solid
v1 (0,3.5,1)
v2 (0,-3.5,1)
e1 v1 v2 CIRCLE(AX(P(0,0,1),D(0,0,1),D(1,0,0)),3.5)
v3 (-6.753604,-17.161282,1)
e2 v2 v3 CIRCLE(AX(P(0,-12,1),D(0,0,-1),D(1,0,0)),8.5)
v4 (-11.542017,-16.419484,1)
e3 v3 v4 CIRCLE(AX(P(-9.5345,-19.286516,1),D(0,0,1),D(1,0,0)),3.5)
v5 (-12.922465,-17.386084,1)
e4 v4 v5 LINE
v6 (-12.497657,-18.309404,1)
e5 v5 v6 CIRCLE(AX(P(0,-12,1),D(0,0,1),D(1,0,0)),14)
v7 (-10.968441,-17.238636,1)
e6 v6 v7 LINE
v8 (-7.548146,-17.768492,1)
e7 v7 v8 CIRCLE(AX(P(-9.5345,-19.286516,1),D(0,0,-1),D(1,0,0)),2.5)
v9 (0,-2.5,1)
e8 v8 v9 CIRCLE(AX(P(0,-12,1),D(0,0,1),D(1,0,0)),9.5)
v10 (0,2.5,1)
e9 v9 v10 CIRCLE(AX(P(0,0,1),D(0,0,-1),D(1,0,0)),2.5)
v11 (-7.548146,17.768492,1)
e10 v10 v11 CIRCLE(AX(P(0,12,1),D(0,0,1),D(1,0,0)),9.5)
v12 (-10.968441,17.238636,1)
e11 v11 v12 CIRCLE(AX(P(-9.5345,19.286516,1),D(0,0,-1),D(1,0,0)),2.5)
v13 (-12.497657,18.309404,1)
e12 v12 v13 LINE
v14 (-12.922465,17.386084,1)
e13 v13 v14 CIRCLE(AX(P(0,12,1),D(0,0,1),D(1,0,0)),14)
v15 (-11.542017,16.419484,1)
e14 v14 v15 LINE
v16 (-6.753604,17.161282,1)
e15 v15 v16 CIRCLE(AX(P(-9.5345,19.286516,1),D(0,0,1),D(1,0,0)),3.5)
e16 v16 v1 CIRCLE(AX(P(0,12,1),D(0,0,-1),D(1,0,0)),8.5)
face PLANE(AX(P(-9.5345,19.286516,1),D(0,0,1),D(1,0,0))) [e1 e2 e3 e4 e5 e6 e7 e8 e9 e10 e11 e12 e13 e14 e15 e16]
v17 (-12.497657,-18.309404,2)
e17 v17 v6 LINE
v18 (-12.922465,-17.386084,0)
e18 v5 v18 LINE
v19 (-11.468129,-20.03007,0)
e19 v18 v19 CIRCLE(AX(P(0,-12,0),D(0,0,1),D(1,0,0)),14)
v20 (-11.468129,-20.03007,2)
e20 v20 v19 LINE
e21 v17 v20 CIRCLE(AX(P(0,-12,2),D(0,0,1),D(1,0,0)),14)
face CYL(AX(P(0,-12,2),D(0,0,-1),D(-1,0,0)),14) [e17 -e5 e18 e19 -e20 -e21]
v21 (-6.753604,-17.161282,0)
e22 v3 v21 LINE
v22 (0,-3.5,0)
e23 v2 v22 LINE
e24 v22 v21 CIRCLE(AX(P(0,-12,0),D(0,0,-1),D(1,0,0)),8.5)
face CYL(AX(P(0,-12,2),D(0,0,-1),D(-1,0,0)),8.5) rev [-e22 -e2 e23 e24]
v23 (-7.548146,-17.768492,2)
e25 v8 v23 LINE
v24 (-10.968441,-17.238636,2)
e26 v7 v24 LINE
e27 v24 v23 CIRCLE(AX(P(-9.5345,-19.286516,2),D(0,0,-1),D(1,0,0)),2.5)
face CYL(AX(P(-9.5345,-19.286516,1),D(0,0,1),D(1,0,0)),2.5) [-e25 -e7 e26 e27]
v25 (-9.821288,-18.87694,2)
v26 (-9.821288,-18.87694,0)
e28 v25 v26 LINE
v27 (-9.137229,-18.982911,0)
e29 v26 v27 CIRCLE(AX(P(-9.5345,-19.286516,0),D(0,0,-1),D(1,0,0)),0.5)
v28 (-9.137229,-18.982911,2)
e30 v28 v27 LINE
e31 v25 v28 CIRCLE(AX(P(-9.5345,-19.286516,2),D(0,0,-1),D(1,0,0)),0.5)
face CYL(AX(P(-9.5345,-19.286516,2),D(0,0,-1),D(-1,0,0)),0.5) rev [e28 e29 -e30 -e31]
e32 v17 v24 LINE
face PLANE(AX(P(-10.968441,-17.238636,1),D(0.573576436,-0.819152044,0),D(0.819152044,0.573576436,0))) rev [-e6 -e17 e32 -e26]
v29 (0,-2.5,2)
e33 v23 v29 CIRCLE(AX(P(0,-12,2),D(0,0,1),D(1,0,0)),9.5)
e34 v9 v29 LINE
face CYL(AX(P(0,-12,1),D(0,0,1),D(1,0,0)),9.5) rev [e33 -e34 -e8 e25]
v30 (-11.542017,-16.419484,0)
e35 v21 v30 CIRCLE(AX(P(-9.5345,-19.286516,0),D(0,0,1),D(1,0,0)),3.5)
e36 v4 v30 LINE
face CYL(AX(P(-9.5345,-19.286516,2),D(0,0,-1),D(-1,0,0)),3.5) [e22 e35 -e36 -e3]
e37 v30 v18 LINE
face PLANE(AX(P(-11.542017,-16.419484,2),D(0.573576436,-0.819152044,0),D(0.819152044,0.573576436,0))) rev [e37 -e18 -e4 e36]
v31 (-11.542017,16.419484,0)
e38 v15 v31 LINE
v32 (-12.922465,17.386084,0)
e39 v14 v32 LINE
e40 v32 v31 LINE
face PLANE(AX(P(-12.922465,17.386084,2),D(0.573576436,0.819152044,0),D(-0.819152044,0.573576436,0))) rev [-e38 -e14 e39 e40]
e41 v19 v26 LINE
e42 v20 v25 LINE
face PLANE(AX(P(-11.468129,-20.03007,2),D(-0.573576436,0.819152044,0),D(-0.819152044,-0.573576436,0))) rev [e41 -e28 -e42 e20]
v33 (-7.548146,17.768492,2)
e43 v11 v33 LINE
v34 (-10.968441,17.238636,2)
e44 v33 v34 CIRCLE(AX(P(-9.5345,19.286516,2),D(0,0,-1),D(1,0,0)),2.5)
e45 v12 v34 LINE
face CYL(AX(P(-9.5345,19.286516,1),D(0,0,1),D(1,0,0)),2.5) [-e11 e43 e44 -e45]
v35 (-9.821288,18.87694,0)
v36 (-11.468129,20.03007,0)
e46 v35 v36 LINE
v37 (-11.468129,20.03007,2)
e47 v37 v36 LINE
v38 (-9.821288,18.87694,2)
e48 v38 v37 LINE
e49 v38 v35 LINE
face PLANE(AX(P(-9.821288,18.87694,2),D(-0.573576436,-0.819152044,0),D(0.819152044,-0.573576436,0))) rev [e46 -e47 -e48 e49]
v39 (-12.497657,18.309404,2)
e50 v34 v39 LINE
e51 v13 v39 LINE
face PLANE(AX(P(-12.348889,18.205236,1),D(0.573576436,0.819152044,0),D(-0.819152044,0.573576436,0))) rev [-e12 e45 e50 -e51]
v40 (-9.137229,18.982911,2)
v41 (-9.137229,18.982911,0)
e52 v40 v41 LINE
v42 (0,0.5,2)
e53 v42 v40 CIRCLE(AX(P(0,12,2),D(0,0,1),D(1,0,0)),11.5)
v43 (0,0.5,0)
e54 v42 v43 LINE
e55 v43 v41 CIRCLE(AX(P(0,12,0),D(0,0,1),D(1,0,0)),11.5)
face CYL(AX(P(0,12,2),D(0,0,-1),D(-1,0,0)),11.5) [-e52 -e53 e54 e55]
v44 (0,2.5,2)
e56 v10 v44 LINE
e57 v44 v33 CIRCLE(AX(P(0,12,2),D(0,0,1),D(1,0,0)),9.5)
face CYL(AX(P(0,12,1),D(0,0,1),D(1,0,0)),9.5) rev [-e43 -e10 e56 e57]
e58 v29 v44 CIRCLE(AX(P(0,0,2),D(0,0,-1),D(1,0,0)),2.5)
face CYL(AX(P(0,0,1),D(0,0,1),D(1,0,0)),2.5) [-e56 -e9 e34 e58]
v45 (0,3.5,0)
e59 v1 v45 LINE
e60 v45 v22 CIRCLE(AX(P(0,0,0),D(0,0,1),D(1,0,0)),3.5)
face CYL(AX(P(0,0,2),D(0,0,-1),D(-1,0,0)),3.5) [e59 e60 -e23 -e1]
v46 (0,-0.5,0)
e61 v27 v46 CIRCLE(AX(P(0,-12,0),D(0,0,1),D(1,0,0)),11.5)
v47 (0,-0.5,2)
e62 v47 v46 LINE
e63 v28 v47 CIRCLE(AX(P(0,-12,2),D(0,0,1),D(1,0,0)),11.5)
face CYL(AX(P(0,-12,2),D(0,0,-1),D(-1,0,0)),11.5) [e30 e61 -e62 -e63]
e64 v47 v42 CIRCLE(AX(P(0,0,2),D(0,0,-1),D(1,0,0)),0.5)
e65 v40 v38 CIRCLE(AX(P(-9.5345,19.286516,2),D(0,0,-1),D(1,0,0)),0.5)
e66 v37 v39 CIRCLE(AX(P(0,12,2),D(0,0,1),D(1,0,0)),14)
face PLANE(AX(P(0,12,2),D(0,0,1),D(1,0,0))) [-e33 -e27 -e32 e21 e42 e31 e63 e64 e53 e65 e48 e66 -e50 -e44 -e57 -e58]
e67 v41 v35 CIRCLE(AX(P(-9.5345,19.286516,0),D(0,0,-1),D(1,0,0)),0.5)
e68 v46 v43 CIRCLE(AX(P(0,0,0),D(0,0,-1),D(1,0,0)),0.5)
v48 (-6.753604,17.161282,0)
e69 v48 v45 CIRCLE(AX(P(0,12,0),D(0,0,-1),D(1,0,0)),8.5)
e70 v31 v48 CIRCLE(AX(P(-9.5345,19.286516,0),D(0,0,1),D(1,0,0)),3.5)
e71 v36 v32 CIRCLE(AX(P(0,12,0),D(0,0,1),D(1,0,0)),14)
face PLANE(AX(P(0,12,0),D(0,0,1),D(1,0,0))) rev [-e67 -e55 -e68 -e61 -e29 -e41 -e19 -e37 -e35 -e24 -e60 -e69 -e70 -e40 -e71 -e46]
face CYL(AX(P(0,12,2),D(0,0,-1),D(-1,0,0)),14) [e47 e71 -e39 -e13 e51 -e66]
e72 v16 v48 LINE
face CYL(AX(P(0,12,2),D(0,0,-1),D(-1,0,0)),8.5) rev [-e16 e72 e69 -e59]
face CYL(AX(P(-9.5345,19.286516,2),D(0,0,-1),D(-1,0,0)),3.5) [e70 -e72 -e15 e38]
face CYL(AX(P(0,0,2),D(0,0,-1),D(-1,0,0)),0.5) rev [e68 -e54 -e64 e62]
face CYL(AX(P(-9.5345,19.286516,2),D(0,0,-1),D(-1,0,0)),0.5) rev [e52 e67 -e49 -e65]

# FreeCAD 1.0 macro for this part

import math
import FreeCAD as App
import Part
import Sketcher
Q = App.Units.Quantity

doc = App.newDocument("Part")
body = doc.addObject("PartDesign::Body", "Body")

# Sketch on XY plane
sketch1 = body.newObject("Sketcher::SketchObject", "Sketch")
sketch1.AttachmentSupport = (doc.getObject("XY_Plane"), [""])
sketch1.MapMode = "FlatFace"
sketch1.addGeometry([
    Part.LineSegment(App.Vector(-12.92, 17.39, 0), App.Vector(-11.54, 16.42, 0)),  # 0
    Part.ArcOfCircle(Part.Circle(App.Vector(-9.53, 19.29, 0), App.Vector(0, 0, 1), 3.5), math.radians(-125), math.radians(-37)),  # 1
    Part.ArcOfCircle(Part.Circle(App.Vector(0, 12, 0), App.Vector(0, 0, 1), 8.5), math.radians(-90), math.radians(143)),  # 2
    Part.ArcOfCircle(Part.Circle(App.Vector(0, 0, 0), App.Vector(0, 0, 1), 3.5), math.radians(90), math.radians(270)),  # 3
    Part.ArcOfCircle(Part.Circle(App.Vector(0, -12, 0), App.Vector(0, 0, 1), 8.5), math.radians(-143), math.radians(90)),  # 4
    Part.ArcOfCircle(Part.Circle(App.Vector(-9.53, -19.29, 0), App.Vector(0, 0, 1), 3.5), math.radians(37), math.radians(125)),  # 5
    Part.LineSegment(App.Vector(-11.54, -16.42, 0), App.Vector(-12.92, -17.39, 0)),  # 6
    Part.ArcOfCircle(Part.Circle(App.Vector(0, -12, 0), App.Vector(0, 0, 1), 14), math.radians(-157.37), math.radians(-145)),  # 7
    Part.LineSegment(App.Vector(-11.47, -20.03, 0), App.Vector(-9.82, -18.88, 0)),  # 8
    Part.ArcOfCircle(Part.Circle(App.Vector(-9.53, -19.29, 0), App.Vector(0, 0, 1), 0.5), math.radians(37), math.radians(125)),  # 9
    Part.ArcOfCircle(Part.Circle(App.Vector(0, -12, 0), App.Vector(0, 0, 1), 11.5), math.radians(-143), math.radians(90)),  # 10
    Part.ArcOfCircle(Part.Circle(App.Vector(0, 0, 0), App.Vector(0, 0, 1), 0.5), math.radians(90), math.radians(270)),  # 11
    Part.ArcOfCircle(Part.Circle(App.Vector(0, 12, 0), App.Vector(0, 0, 1), 11.5), math.radians(-90), math.radians(143)),  # 12
    Part.ArcOfCircle(Part.Circle(App.Vector(-9.53, 19.29, 0), App.Vector(0, 0, 1), 0.5), math.radians(-125), math.radians(-37)),  # 13
    Part.LineSegment(App.Vector(-9.82, 18.88, 0), App.Vector(-11.47, 20.03, 0)),  # 14
    Part.ArcOfCircle(Part.Circle(App.Vector(0, 12, 0), App.Vector(0, 0, 1), 14), math.radians(145), math.radians(157.37)),  # 15
], False)
sketch1.addConstraint([
    Sketcher.Constraint("Tangent", 0, 2, 1, 1),
    Sketcher.Constraint("Tangent", 1, 2, 2, 2),
    Sketcher.Constraint("Tangent", 2, 1, 3, 1),
    Sketcher.Constraint("Tangent", 3, 2, 4, 2),
    Sketcher.Constraint("Tangent", 4, 1, 5, 1),
    Sketcher.Constraint("Tangent", 5, 2, 6, 1),
    Sketcher.Constraint("Coincident", 6, 2, 7, 1),
    Sketcher.Constraint("Coincident", 7, 2, 8, 1),
    Sketcher.Constraint("Tangent", 8, 2, 9, 2),
    Sketcher.Constraint("Tangent", 9, 1, 10, 1),
    Sketcher.Constraint("Tangent", 10, 2, 11, 2),
    Sketcher.Constraint("Tangent", 11, 1, 12, 1),
    Sketcher.Constraint("Tangent", 12, 2, 13, 2),
    Sketcher.Constraint("Tangent", 13, 1, 14, 1),
    Sketcher.Constraint("Coincident", 14, 2, 15, 1),
    Sketcher.Constraint("Coincident", 15, 2, 0, 1),
    Sketcher.Constraint("Coincident", 3, 3, -1, 1),
    Sketcher.Constraint("Coincident", 11, 3, -1, 1),
    Sketcher.Constraint("Coincident", 7, 3, 4, 3),
    Sketcher.Constraint("Coincident", 9, 3, 5, 3),
    Sketcher.Constraint("Coincident", 10, 3, 4, 3),
    Sketcher.Constraint("Coincident", 12, 3, 2, 3),
    Sketcher.Constraint("Coincident", 13, 3, 1, 3),
    Sketcher.Constraint("Coincident", 15, 3, 2, 3),
    Sketcher.Constraint("Equal", 1, 3),
    Sketcher.Constraint("Equal", 2, 4),
    Sketcher.Constraint("Equal", 3, 5),
    Sketcher.Constraint("Equal", 7, 15),
    Sketcher.Constraint("Symmetric", 1, 3, 5, 3, -1),
    Sketcher.Constraint("PointOnObject", 2, 3, -2),
    Sketcher.Constraint("Parallel", 6, 8),
    Sketcher.Constraint("Parallel", 0, 14),
    Sketcher.Constraint("Vertical", 0, 2, 5, 2),
    Sketcher.Constraint("Radius", 7, Q("14 mm")),
    Sketcher.Constraint("Radius", 1, Q("3.5 mm")),
    Sketcher.Constraint("Radius", 2, Q("8.5 mm")),
    Sketcher.Constraint("Radius", 9, Q("0.5 mm")),
    Sketcher.Constraint("Angle", 0, Q("-35 deg")),
    Sketcher.Constraint("DistanceX", 1, 3, -1, 1, Q("9.5345 mm")),
])
pad1 = body.newObject("PartDesign::Pad", "Pad")
pad1.Profile = sketch1
pad1.Length = 2

# Sketch on XY plane
sketch2 = body.newObject("Sketcher::SketchObject", "Sketch001")
sketch2.AttachmentSupport = (doc.getObject("XY_Plane"), [""])
sketch2.MapMode = "FlatFace"
sketch2.AttachmentOffset = App.Placement(App.Vector(0, 0, 1), App.Rotation())
sketch2.addGeometry([
    Part.LineSegment(App.Vector(-12.9, 17.4, 0), App.Vector(-11.5, 16.4, 0)),  # 0
    Part.ArcOfCircle(Part.Circle(App.Vector(-9.5, 19.3, 0), App.Vector(0, 0, 1), 3.5), math.radians(-125), math.radians(-37)),  # 1
    Part.ArcOfCircle(Part.Circle(App.Vector(0, 12, 0), App.Vector(0, 0, 1), 8.5), math.radians(-90), math.radians(143)),  # 2
    Part.ArcOfCircle(Part.Circle(App.Vector(0, 0, 0), App.Vector(0, 0, 1), 3.5), math.radians(90), math.radians(270)),  # 3
    Part.ArcOfCircle(Part.Circle(App.Vector(0, -12, 0), App.Vector(0, 0, 1), 8.5), math.radians(-143), math.radians(90)),  # 4
    Part.ArcOfCircle(Part.Circle(App.Vector(-9.5, -19.3, 0), App.Vector(0, 0, 1), 3.5), math.radians(37), math.radians(125)),  # 5
    Part.LineSegment(App.Vector(-11.5, -16.4, 0), App.Vector(-12.9, -17.4, 0)),  # 6
    Part.LineSegment(App.Vector(-12.9, -17.4, 0), App.Vector(-13, -18.6, 0)),  # 7
    Part.LineSegment(App.Vector(-13, -18.6, 0), App.Vector(-12.3, -18.2, 0)),  # 8
    Part.LineSegment(App.Vector(-12.3, -18.2, 0), App.Vector(-11, -17.2, 0)),  # 9
    Part.ArcOfCircle(Part.Circle(App.Vector(-9.5, -19.3, 0), App.Vector(0, 0, 1), 2.5), math.radians(37), math.radians(125)),  # 10
    Part.ArcOfCircle(Part.Circle(App.Vector(0, -12, 0), App.Vector(0, 0, 1), 9.5), math.radians(-143), math.radians(90)),  # 11
    Part.ArcOfCircle(Part.Circle(App.Vector(0, 0, 0), App.Vector(0, 0, 1), 2.5), math.radians(90), math.radians(270)),  # 12
    Part.ArcOfCircle(Part.Circle(App.Vector(0, 12, 0), App.Vector(0, 0, 1), 9.5), math.radians(-90), math.radians(143)),  # 13
    Part.ArcOfCircle(Part.Circle(App.Vector(-9.5, 19.3, 0), App.Vector(0, 0, 1), 2.5), math.radians(-125), math.radians(-37)),  # 14
    Part.LineSegment(App.Vector(-11, 17.2, 0), App.Vector(-12.3, 18.2, 0)),  # 15
    Part.LineSegment(App.Vector(-12.3, 18.2, 0), App.Vector(-12.9, 18.6, 0)),  # 16
    Part.LineSegment(App.Vector(-12.9, 18.6, 0), App.Vector(-13.3, 18.2, 0)),  # 17
    Part.LineSegment(App.Vector(-13.3, 18.2, 0), App.Vector(-12.9, 17.4, 0)),  # 18
], False)
sketch2.addConstraint([
    Sketcher.Constraint("Tangent", 0, 2, 1, 1),
    Sketcher.Constraint("Tangent", 1, 2, 2, 2),
    Sketcher.Constraint("Tangent", 2, 1, 3, 1),
    Sketcher.Constraint("Tangent", 3, 2, 4, 2),
    Sketcher.Constraint("Tangent", 4, 1, 5, 1),
    Sketcher.Constraint("Tangent", 5, 2, 6, 1),
    Sketcher.Constraint("Coincident", 6, 2, 7, 1),
    Sketcher.Constraint("Coincident", 7, 2, 8, 1),
    Sketcher.Constraint("Coincident", 8, 2, 9, 1),
    Sketcher.Constraint("Tangent", 9, 2, 10, 2),
    Sketcher.Constraint("Tangent", 10, 1, 11, 1),
    Sketcher.Constraint("Tangent", 11, 2, 12, 2),
    Sketcher.Constraint("Tangent", 12, 1, 13, 1),
    Sketcher.Constraint("Tangent", 13, 2, 14, 2),
    Sketcher.Constraint("Tangent", 14, 1, 15, 1),
    Sketcher.Constraint("Coincident", 15, 2, 16, 1),
    Sketcher.Constraint("Coincident", 16, 2, 17, 1),
    Sketcher.Constraint("Coincident", 17, 2, 18, 1),
    Sketcher.Constraint("Coincident", 18, 2, 0, 1),
    Sketcher.Constraint("Coincident", 3, 3, -1, 1),
    Sketcher.Constraint("Coincident", 12, 3, -1, 1),
    Sketcher.Constraint("Coincident", 10, 3, 5, 3),
    Sketcher.Constraint("Coincident", 11, 3, 4, 3),
    Sketcher.Constraint("Coincident", 13, 3, 2, 3),
    Sketcher.Constraint("Coincident", 14, 3, 1, 3),
    Sketcher.Constraint("Equal", 1, 3),
    Sketcher.Constraint("Equal", 2, 4),
    Sketcher.Constraint("Equal", 3, 5),
    Sketcher.Constraint("Symmetric", 1, 3, 5, 3, -1),
    Sketcher.Constraint("Symmetric", 8, 2, 15, 2, -1),
    Sketcher.Constraint("Symmetric", 6, 2, 18, 2, -1),
    Sketcher.Constraint("PointOnObject", 2, 3, -2),
    Sketcher.Constraint("Parallel", 6, 8),
    Sketcher.Constraint("Parallel", 8, 9),
    Sketcher.Constraint("Parallel", 15, 16),
    Sketcher.Constraint("Horizontal", 15, 2, 17, 2),
    Sketcher.Constraint("Equal", 6, 9),
    Sketcher.Constraint("Radius", 1, Q("3.5 mm")),
    Sketcher.Constraint("Radius", 2, Q("8.5 mm")),
    Sketcher.Constraint("Radius", 10, Q("2.5 mm")),
    Sketcher.Constraint("Angle", 0, Q("-35 deg")),
    Sketcher.Constraint("DistanceX", 1, 3, -1, 1, Q("9.5345 mm")),
    Sketcher.Constraint("DistanceY", 6, 2, 5, 2, Q("0.9666 mm")),
    Sketcher.Constraint("Distance", 7, Q("1.262339 mm")),
    Sketcher.Constraint("DistanceX", 17, 2, -1, 1, Q("13.295629 mm")),
    Sketcher.Constraint("DistanceX", 16, 2, 15, 2, Q("0.550038 mm")),
])
pocket1 = body.newObject("PartDesign::Pocket", "Pocket")
pocket1.Profile = sketch2
pocket1.Length = 1
pocket1.Reversed = True

doc.recompute()
